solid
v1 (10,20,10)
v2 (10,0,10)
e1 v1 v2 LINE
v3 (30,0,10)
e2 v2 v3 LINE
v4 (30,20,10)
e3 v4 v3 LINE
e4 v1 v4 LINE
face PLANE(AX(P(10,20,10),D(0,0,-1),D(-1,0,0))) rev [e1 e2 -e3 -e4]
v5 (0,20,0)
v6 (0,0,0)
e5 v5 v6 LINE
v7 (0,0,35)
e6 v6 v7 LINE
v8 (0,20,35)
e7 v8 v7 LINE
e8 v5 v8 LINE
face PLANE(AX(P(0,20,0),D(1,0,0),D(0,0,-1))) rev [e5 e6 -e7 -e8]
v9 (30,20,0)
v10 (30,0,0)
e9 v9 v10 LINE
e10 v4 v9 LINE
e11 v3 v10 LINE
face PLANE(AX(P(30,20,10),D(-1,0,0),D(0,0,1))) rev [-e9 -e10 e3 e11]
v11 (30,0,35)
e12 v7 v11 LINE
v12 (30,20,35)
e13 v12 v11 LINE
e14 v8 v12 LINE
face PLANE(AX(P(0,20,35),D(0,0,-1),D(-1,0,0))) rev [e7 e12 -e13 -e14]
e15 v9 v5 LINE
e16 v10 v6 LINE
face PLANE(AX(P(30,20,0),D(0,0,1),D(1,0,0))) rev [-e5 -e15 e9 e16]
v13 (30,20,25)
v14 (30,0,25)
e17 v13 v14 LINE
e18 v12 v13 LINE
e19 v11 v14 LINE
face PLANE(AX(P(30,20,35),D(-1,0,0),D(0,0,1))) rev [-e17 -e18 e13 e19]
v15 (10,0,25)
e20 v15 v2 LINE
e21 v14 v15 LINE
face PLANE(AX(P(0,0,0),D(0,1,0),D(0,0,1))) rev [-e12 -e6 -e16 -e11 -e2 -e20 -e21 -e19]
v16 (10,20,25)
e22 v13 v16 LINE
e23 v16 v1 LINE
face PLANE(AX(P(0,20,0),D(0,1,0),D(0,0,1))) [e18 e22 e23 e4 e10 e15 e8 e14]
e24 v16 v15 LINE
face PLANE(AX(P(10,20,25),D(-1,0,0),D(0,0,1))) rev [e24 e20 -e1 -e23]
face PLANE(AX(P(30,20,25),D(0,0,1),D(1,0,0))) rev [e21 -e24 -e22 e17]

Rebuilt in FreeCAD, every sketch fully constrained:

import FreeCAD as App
import Part
import Sketcher
from FreeCAD import Vector


def add_polygon(sketch, points):
    """Adds a closed chain of lines whose ends are joined by coincident constraints."""
    first, n = sketch.GeometryCount, len(points)
    for a, b in zip(points, points[1:] + points[:1]):
        sketch.addGeometry(Part.LineSegment(App.Vector(*a, 0), App.Vector(*b, 0)), False)
    for i in range(n):
        sketch.addConstraint(Sketcher.Constraint("Coincident", first + i, 2, first + (i + 1) % n, 1))

doc = App.newDocument("Part")
params = doc.addObject("Spreadsheet::Sheet", "Params")
for row, (alias, value) in enumerate([
    ("sketch1_width", "30 mm"),
    ("sketch1_width2", "20 mm"),
    ("sketch1_height", "35 mm"),
    ("sketch1_height2", "10 mm"),
    ("pad1_length", "20 mm"),
], start=1):
    params.set(f"A{row}", alias)
    params.set(f"B{row}", "=" + value)
    params.setAlias(f"B{row}", alias)

body = doc.addObject("PartDesign::Body", "Body")

# Sketch on XZ plane
sketch1 = body.newObject("Sketcher::SketchObject", "Sketch")
sketch1.AttachmentSupport = (doc.getObject("XZ_Plane"), [""])
sketch1.MapMode = "FlatFace"
add_polygon(sketch1, [(0, 0), (0, 35), (30, 35), (30, 25), (10, 25), (10, 10), (30, 10), (30, 0)])  # lines 0-7
sketch1.addConstraint([
    Sketcher.Constraint("Vertical", 0),
    Sketcher.Constraint("Horizontal", 1),
    Sketcher.Constraint("Vertical", 2),
    Sketcher.Constraint("Horizontal", 3),
    Sketcher.Constraint("Vertical", 4),
    Sketcher.Constraint("Horizontal", 5),
    Sketcher.Constraint("Vertical", 6),
    Sketcher.Constraint("Horizontal", 7),
    Sketcher.Constraint("Coincident", 7, 2, -1, 1),
    Sketcher.Constraint("Vertical", 2, 2, 5, 2),
    Sketcher.Constraint("Equal", 2, 6),
    Sketcher.Constraint("DistanceX", 1, 1, 1, 2, 30.0),
    Sketcher.Constraint("DistanceX", 3, 2, 3, 1, 20.0),
    Sketcher.Constraint("DistanceY", 0, 1, 0, 2, 35.0),
    Sketcher.Constraint("DistanceY", 2, 2, 2, 1, 10.0),
])
sketch1.setExpression("Constraints[19]", "Params.sketch1_width")
sketch1.setExpression("Constraints[20]", "Params.sketch1_width2")
sketch1.setExpression("Constraints[21]", "Params.sketch1_height")
sketch1.setExpression("Constraints[22]", "Params.sketch1_height2")
pad1 = body.newObject("PartDesign::Pad", "Pad")
pad1.Profile = sketch1
pad1.setExpression("Length", "Params.pad1_length")
pad1.Reversed = True

doc.recompute()
